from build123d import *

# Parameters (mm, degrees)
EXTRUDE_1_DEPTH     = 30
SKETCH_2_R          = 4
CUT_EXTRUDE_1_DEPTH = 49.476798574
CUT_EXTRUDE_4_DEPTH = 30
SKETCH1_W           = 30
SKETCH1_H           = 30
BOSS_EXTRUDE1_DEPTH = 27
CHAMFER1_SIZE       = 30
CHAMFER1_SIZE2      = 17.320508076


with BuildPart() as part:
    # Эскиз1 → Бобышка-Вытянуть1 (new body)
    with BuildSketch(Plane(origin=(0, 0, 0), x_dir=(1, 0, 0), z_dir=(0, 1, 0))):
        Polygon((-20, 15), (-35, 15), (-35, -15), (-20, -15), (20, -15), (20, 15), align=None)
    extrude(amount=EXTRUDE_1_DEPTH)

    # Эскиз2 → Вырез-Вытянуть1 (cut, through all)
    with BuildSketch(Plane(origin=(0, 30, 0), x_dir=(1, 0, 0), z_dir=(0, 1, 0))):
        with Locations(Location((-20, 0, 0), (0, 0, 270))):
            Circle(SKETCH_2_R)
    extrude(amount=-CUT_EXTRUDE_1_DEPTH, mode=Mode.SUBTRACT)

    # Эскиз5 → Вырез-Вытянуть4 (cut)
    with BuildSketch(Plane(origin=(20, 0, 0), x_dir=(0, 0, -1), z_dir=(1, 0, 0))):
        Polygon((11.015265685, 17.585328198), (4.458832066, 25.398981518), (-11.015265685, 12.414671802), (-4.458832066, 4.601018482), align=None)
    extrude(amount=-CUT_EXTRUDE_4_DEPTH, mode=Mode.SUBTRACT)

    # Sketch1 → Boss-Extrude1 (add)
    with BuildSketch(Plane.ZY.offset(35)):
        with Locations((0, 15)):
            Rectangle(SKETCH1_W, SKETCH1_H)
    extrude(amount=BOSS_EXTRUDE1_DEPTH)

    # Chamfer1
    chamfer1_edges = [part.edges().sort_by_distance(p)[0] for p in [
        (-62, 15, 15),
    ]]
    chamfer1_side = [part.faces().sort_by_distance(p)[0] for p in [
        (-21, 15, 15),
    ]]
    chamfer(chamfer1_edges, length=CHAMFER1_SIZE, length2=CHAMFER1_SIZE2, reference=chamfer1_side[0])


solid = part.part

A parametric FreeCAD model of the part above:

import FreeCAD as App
import Part
import Sketcher

V = App.Vector
Q = App.Units.Quantity


def edges_at(feature, points):
    """Names of the edges that pass closest to the given points."""
    edges = feature.Shape.Edges
    near = lambda p: min(range(len(edges)), key=lambda i: edges[i].distToShape(Part.Vertex(*p))[0])
    return sorted({f"Edge{near(p) + 1}" for p in points})


def add_polygon(sketch, points):
    """Adds a closed chain of lines whose ends are joined by coincident constraints."""
    first, n = sketch.GeometryCount, len(points)
    for a, b in zip(points, points[1:] + points[:1]):
        sketch.addGeometry(Part.LineSegment(App.Vector(*a, 0), App.Vector(*b, 0)), False)
    for i in range(n):
        sketch.addConstraint(Sketcher.Constraint("Coincident", first + i, 2, first + (i + 1) % n, 1))

doc = App.newDocument("Part")
body = doc.addObject("PartDesign::Body", "Body")

sketch1 = body.newObject("Sketcher::SketchObject", "Sketch")
sketch1.AttachmentSupport = (doc.getObject("XZ_Plane"), [""])
sketch1.MapMode = "FlatFace"
add_polygon(sketch1, [(-35, -15), (-35, 15), (20, 15), (20, -15)])
sketch1.addConstraint(Sketcher.Constraint("Vertical", 0))
sketch1.addConstraint(Sketcher.Constraint("Horizontal", 1))
sketch1.addConstraint(Sketcher.Constraint("Vertical", 2))
sketch1.addConstraint(Sketcher.Constraint("Horizontal", 3))
sketch1.addConstraint(Sketcher.Constraint("DistanceX", 1, 1, 1, 2, Q("55 mm")))
sketch1.addConstraint(Sketcher.Constraint("DistanceY", 0, 1, 0, 2, Q("30 mm")))
sketch1.addConstraint(Sketcher.Constraint("DistanceX", 0, 2, -1, 1, Q("35 mm")))
sketch1.addConstraint(Sketcher.Constraint("DistanceY", -1, 1, 0, 2, Q("15 mm")))
pad1 = body.newObject("PartDesign::Pad", "Pad")
pad1.Profile = sketch1
pad1.Length = 30
pad1.Reversed = True

sketch2 = body.newObject("Sketcher::SketchObject", "Sketch001")
sketch2.AttachmentSupport = (doc.getObject("XZ_Plane"), [""])
sketch2.MapMode = "FlatFace"
sketch2.AttachmentOffset = App.Placement(V(0, 0, -30), App.Rotation())
sketch2.addGeometry(Part.Circle(V(-20, 0, 0), V(0, 0, 1), 4), False)
sketch2.addConstraint(Sketcher.Constraint("PointOnObject", 0, 3, -1))
sketch2.addConstraint(Sketcher.Constraint("Diameter", 0, Q("8 mm")))
sketch2.addConstraint(Sketcher.Constraint("DistanceX", 0, 3, -1, 1, Q("20 mm")))
pocket1 = body.newObject("PartDesign::Pocket", "Pocket")
pocket1.Profile = sketch2
pocket1.Type = "ThroughAll"
pocket1.Reversed = True

sketch3 = body.newObject("Sketcher::SketchObject", "Sketch002")
sketch3.AttachmentSupport = (doc.getObject("YZ_Plane"), [""])
sketch3.MapMode = "FlatFace"
sketch3.AttachmentOffset = App.Placement(V(0, 0, 20), App.Rotation())
add_polygon(sketch3, [(18, -11), (25, -4), (12, 11), (5, 4)])
sketch3.addConstraint(Sketcher.Constraint("Perpendicular", 0, 1))
sketch3.addConstraint(Sketcher.Constraint("Perpendicular", 1, 2))
sketch3.addConstraint(Sketcher.Constraint("Perpendicular", 2, 3))
sketch3.addConstraint(Sketcher.Constraint("Angle", 0, Q("40 deg")))
sketch3.addConstraint(Sketcher.Constraint("Distance", 0, Q("10.2 mm")))
sketch3.addConstraint(Sketcher.Constraint("Distance", 1, Q("20.2 mm")))
sketch3.addConstraint(Sketcher.Constraint("DistanceX", -1, 1, 0, 2, Q("25.398982 mm")))
sketch3.addConstraint(Sketcher.Constraint("DistanceY", 0, 2, -1, 1, Q("4.458832 mm")))
pocket2 = body.newObject("PartDesign::Pocket", "Pocket001")
pocket2.Profile = sketch3
pocket2.Length = 30

sketch4 = body.newObject("Sketcher::SketchObject", "Sketch003")
sketch4.AttachmentSupport = (doc.getObject("YZ_Plane"), [""])
sketch4.MapMode = "FlatFace"
sketch4.AttachmentOffset = App.Placement(V(0, 0, -35), App.Rotation())
add_polygon(sketch4, [(30, -15), (0, -15), (0, 15), (30, 15)])
sketch4.addConstraint(Sketcher.Constraint("Horizontal", 0))
sketch4.addConstraint(Sketcher.Constraint("Vertical", 1))
sketch4.addConstraint(Sketcher.Constraint("Horizontal", 2))
sketch4.addConstraint(Sketcher.Constraint("Vertical", 3))
sketch4.addConstraint(Sketcher.Constraint("Symmetric", 0, 2, 1, 2, -1, 1))
sketch4.addConstraint(Sketcher.Constraint("Equal", 2, 1))
sketch4.addConstraint(Sketcher.Constraint("DistanceX", 0, 2, 0, 1, Q("30 mm")))
pad2 = body.newObject("PartDesign::Pad", "Pad001")
pad2.Profile = sketch4
pad2.Length = 27
pad2.Reversed = True
doc.recompute()

chamfer = body.newObject("PartDesign::Chamfer", "Chamfer")
chamfer.Base = (pad2, edges_at(pad2, [(-62, 15, 15)]))
chamfer.ChamferType = "Two distances"
chamfer.Size = 30
chamfer.Size2 = 17.320508
chamfer.FlipDirection = True

doc.recompute()
